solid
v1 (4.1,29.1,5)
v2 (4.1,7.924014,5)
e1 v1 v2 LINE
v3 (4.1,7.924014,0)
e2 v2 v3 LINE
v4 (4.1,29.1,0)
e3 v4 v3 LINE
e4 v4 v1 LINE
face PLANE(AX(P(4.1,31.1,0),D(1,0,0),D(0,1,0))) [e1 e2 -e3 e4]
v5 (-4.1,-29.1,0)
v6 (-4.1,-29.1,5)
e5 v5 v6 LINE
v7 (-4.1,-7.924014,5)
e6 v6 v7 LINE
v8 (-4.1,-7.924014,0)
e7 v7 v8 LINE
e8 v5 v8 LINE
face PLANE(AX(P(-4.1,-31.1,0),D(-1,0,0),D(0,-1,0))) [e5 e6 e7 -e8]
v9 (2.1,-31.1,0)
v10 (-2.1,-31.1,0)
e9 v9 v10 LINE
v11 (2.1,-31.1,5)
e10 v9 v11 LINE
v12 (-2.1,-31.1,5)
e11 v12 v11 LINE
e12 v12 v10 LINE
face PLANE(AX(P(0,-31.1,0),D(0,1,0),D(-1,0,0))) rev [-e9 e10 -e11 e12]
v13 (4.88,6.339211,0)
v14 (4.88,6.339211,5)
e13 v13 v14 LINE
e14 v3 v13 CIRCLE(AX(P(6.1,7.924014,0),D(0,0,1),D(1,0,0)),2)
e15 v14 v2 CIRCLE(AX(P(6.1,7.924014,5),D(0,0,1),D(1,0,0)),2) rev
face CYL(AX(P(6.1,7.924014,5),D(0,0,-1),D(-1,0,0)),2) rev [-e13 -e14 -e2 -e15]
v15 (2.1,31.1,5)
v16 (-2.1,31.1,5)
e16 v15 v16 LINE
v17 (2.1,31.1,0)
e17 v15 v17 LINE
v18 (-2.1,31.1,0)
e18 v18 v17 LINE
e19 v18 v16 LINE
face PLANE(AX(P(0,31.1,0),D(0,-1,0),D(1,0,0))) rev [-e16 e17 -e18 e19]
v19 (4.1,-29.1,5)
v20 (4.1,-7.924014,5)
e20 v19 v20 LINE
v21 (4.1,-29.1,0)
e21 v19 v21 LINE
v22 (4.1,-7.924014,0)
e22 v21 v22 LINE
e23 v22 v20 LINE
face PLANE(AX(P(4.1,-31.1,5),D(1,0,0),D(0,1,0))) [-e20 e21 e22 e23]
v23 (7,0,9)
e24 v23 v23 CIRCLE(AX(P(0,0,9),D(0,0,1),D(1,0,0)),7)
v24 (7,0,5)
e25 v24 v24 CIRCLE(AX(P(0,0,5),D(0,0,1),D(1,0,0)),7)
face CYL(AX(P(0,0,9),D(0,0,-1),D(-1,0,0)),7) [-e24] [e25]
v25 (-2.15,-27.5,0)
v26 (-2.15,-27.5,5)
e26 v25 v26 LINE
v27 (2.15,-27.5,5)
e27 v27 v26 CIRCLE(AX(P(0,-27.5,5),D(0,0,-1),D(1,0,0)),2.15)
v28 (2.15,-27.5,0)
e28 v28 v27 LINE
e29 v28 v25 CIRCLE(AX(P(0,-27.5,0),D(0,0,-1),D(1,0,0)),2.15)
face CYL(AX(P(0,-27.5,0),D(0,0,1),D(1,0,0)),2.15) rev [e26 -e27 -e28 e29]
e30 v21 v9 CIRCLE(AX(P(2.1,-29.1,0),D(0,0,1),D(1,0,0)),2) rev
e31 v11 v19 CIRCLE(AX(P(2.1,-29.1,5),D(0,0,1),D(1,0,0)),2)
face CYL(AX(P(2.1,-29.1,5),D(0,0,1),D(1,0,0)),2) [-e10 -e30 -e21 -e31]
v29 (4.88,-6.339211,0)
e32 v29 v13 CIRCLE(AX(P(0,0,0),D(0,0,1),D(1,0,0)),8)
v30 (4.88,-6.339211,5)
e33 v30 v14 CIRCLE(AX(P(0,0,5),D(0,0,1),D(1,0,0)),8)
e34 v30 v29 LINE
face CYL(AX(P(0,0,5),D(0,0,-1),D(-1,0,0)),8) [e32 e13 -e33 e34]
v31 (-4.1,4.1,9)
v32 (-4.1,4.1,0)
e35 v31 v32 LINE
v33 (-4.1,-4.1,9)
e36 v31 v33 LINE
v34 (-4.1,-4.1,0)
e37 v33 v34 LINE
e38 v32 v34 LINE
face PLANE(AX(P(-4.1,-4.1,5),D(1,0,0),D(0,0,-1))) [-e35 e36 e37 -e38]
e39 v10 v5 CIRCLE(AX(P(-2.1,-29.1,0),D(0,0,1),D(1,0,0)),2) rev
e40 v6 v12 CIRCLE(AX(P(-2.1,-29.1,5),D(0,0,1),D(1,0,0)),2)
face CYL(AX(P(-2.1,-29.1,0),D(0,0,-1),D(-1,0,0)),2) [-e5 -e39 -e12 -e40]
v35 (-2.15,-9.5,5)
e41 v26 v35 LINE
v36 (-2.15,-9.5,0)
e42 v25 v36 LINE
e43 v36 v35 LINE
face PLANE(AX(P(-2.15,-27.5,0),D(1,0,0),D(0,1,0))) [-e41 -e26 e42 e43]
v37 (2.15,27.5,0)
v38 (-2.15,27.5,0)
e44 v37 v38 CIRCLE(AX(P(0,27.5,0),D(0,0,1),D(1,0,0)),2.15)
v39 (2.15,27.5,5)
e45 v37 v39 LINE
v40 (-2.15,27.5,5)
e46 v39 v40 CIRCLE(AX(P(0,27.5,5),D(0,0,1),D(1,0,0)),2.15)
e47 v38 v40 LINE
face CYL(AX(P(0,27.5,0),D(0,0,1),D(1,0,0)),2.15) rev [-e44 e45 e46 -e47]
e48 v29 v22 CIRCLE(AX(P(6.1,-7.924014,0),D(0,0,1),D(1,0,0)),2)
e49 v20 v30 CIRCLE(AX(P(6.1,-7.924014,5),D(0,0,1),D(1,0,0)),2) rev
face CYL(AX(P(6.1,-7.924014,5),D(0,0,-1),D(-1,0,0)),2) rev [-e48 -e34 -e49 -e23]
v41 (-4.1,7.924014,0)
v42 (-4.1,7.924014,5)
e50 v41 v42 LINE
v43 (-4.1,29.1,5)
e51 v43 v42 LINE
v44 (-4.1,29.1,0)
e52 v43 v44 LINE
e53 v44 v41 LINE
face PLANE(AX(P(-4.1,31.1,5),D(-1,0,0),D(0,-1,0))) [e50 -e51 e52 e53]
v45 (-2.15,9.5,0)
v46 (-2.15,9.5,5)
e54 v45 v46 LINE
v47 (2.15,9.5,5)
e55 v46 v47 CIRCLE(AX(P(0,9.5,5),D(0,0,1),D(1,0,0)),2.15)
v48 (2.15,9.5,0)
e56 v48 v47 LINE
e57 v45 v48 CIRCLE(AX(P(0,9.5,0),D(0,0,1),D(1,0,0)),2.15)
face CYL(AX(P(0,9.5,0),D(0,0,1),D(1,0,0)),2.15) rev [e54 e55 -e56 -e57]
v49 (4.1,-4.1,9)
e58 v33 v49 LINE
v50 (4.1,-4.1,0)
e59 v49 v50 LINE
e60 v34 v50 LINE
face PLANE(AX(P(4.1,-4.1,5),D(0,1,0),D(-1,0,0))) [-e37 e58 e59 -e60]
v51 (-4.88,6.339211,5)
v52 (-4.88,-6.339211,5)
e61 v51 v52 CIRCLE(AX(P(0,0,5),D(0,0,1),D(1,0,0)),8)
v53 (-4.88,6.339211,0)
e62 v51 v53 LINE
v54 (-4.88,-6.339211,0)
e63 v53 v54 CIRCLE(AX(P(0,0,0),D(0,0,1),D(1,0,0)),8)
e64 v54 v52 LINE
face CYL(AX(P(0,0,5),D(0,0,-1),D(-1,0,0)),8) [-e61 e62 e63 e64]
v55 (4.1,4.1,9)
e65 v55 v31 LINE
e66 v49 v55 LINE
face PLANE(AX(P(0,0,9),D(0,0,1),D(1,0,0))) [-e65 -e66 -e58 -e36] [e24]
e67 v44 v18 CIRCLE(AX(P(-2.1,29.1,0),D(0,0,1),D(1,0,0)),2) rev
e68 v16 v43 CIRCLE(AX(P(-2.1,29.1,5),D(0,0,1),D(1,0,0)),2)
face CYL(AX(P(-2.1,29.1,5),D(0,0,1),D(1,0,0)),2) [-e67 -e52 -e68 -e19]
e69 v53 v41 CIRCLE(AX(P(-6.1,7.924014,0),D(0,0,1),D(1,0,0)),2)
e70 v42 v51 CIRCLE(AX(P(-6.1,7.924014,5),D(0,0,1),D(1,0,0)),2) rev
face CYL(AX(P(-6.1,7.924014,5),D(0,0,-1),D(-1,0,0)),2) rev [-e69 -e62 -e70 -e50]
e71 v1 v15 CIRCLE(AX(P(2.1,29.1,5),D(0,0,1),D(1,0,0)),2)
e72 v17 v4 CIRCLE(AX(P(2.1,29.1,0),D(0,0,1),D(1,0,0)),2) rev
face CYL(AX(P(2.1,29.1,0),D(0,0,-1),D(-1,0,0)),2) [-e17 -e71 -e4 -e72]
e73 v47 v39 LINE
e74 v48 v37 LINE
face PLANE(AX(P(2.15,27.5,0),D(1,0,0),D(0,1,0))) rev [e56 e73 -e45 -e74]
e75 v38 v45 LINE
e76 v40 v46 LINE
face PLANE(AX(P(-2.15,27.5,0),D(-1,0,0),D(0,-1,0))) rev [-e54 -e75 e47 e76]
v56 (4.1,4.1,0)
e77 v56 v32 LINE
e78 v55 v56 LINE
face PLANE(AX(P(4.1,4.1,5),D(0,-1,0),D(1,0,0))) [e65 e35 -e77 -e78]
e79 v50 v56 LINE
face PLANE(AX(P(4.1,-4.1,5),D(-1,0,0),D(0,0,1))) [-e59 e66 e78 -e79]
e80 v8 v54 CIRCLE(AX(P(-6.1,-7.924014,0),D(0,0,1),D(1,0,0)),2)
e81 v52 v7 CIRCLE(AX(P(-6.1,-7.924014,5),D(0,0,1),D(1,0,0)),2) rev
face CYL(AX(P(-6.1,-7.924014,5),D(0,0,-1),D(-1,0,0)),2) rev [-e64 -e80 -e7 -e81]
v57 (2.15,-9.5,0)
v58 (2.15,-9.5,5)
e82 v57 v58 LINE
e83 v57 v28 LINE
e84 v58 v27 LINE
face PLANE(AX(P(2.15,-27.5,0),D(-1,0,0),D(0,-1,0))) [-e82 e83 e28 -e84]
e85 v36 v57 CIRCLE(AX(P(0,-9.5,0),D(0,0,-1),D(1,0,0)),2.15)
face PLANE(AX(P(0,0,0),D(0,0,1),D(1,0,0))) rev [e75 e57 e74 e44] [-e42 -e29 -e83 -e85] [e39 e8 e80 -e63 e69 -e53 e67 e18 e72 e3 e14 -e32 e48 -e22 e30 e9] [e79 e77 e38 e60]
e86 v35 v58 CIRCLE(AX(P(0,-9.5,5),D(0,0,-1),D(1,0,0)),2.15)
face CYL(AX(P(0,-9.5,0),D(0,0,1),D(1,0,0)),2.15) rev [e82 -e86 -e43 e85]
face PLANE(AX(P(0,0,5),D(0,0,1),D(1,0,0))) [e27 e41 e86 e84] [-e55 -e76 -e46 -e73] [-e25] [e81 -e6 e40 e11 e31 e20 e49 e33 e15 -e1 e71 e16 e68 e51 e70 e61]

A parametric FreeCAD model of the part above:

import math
import FreeCAD as App
import Part
import Sketcher

V = App.Vector
Q = App.Units.Quantity


def edges_at(feature, points):
    """Names of the edges that pass closest to the given points."""
    edges = feature.Shape.Edges
    near = lambda p: min(range(len(edges)), key=lambda i: edges[i].distToShape(Part.Vertex(*p))[0])
    return sorted({f"Edge{near(p) + 1}" for p in points})


def add_polygon(sketch, points):
    """Adds a closed chain of lines whose ends are joined by coincident constraints."""
    first, n = sketch.GeometryCount, len(points)
    for a, b in zip(points, points[1:] + points[:1]):
        sketch.addGeometry(Part.LineSegment(App.Vector(*a, 0), App.Vector(*b, 0)), False)
    for i in range(n):
        sketch.addConstraint(Sketcher.Constraint("Coincident", first + i, 2, first + (i + 1) % n, 1))

doc = App.newDocument("Part")
body = doc.addObject("PartDesign::Body", "Body")

# Sketch on XY plane
sketch1 = body.newObject("Sketcher::SketchObject", "Sketch")
sketch1.AttachmentSupport = (doc.getObject("XY_Plane"), [""])
sketch1.MapMode = "FlatFace"
sketch1.addGeometry(Part.Circle(V(0, 0, 0), V(0, 0, 1), 8), False)  # 0
add_polygon(sketch1, [(4.1, -4.1), (-4.1, -4.1), (-4.1, 4.1), (4.1, 4.1)])  # lines 1-4
sketch1.addConstraint([
    Sketcher.Constraint("Horizontal", 1),
    Sketcher.Constraint("Vertical", 2),
    Sketcher.Constraint("Horizontal", 3),
    Sketcher.Constraint("Vertical", 4),
    Sketcher.Constraint("Coincident", 0, 3, -1, 1),
    Sketcher.Constraint("Symmetric", 1, 2, 3, 2, -1, 1),
    Sketcher.Constraint("Equal", 3, 2),
    Sketcher.Constraint("Diameter", 0, Q("16 mm")),
    Sketcher.Constraint("DistanceX", 1, 2, 1, 1, Q("8.2 mm")),
])
pad1 = body.newObject("PartDesign::Pad", "Pad")
pad1.Profile = sketch1
pad1.Length = 5

# Sketch on XZ plane
sketch2 = body.newObject("Sketcher::SketchObject", "Sketch001")
sketch2.AttachmentSupport = (doc.getObject("XZ_Plane"), [""])
sketch2.MapMode = "FlatFace"
sketch2.AttachmentOffset = App.Placement(V(0, 0, -4.1), App.Rotation())
add_polygon(sketch2, [(-4.1, 5), (-4.1, 0), (4.1, 0), (4.1, 5)])  # lines 0-3
sketch2.addConstraint([
    Sketcher.Constraint("Vertical", 0),
    Sketcher.Constraint("Horizontal", 1),
    Sketcher.Constraint("Vertical", 2),
    Sketcher.Constraint("Horizontal", 3),
    Sketcher.Constraint("Symmetric", 0, 2, 1, 2, -1, 1),
    Sketcher.Constraint("DistanceY", 0, 2, 0, 1, Q("5 mm")),
    Sketcher.Constraint("DistanceX", 1, 1, 1, 2, Q("8.2 mm")),
])
pad2 = body.newObject("PartDesign::Pad", "Pad001")
pad2.Profile = sketch2
pad2.Length = 27
pad2.Reversed = True

# Sketch on XZ plane
sketch3 = body.newObject("Sketcher::SketchObject", "Sketch002")
sketch3.AttachmentSupport = (doc.getObject("XZ_Plane"), [""])
sketch3.MapMode = "FlatFace"
sketch3.AttachmentOffset = App.Placement(V(0, 0, 4.1), App.Rotation())
add_polygon(sketch3, [(-4.1, 0), (-4.1, 5), (4.1, 5), (4.1, 0)])  # lines 0-3
sketch3.addConstraint([
    Sketcher.Constraint("Vertical", 0),
    Sketcher.Constraint("Horizontal", 1),
    Sketcher.Constraint("Vertical", 2),
    Sketcher.Constraint("Horizontal", 3),
    Sketcher.Constraint("Symmetric", 2, 2, 3, 2, -1, 1),
    Sketcher.Constraint("DistanceY", 0, 1, 0, 2, Q("5 mm")),
    Sketcher.Constraint("DistanceX", 1, 1, 1, 2, Q("8.2 mm")),
])
pad3 = body.newObject("PartDesign::Pad", "Pad002")
pad3.Profile = sketch3
pad3.Length = 27

# Sketch on XY plane
sketch4 = body.newObject("Sketcher::SketchObject", "Sketch003")
sketch4.AttachmentSupport = (doc.getObject("XY_Plane"), [""])
sketch4.MapMode = "FlatFace"
sketch4.AttachmentOffset = App.Placement(V(0, 0, 5), App.Rotation())
sketch4.addGeometry(Part.Circle(V(0, 0, 0), V(0, 0, 1), 7), False)  # 0
add_polygon(sketch4, [(4.1, -4.1), (-4.1, -4.1), (-4.1, 4.1), (4.1, 4.1)])  # lines 1-4
sketch4.addConstraint([
    Sketcher.Constraint("Horizontal", 1),
    Sketcher.Constraint("Vertical", 2),
    Sketcher.Constraint("Horizontal", 3),
    Sketcher.Constraint("Vertical", 4),
    Sketcher.Constraint("Coincident", 0, 3, -1, 1),
    Sketcher.Constraint("Symmetric", 1, 2, 3, 2, -1, 1),
    Sketcher.Constraint("Equal", 3, 2),
    Sketcher.Constraint("Diameter", 0, Q("14 mm")),
    Sketcher.Constraint("DistanceX", 1, 2, 1, 1, Q("8.2 mm")),
])
pad4 = body.newObject("PartDesign::Pad", "Pad003")
pad4.Profile = sketch4
pad4.Length = 4

# Sketch on XY plane
sketch5 = body.newObject("Sketcher::SketchObject", "Sketch004")
sketch5.AttachmentSupport = (doc.getObject("XY_Plane"), [""])
sketch5.MapMode = "FlatFace"
sketch5.AttachmentOffset = App.Placement(V(0, 0, 5), App.Rotation())
sketch5.addGeometry([
    Part.LineSegment(V(2.15, 9.5, 0), V(2.15, 27.5, 0)),
    Part.ArcOfCircle(Part.Circle(V(0, 27.5, 0), V(0, 0, 1), 2.15), math.radians(0), math.radians(180)),
    Part.LineSegment(V(-2.15, 27.5, 0), V(-2.15, 9.5, 0)),
    Part.ArcOfCircle(Part.Circle(V(0, 9.5, 0), V(0, 0, 1), 2.15), math.radians(180), math.radians(360)),
], False)
sketch5.addConstraint([
    Sketcher.Constraint("Tangent", 0, 2, 1, 1),
    Sketcher.Constraint("Tangent", 1, 2, 2, 1),
    Sketcher.Constraint("Tangent", 2, 2, 3, 1),
    Sketcher.Constraint("Tangent", 3, 2, 0, 1),
    Sketcher.Constraint("Vertical", 0),
    Sketcher.Constraint("Vertical", 2),
    Sketcher.Constraint("PointOnObject", 1, 3, -2),
    Sketcher.Constraint("DistanceY", 0, 1, 0, 2, Q("18 mm")),
    Sketcher.Constraint("Radius", 1, Q("2.15 mm")),
    Sketcher.Constraint("DistanceY", -1, 1, 1, 3, Q("27.5 mm")),
])
pocket1 = body.newObject("PartDesign::Pocket", "Pocket")
pocket1.Profile = sketch5
pocket1.Type = "ThroughAll"
doc.recompute()

mirrored = body.newObject("PartDesign::Mirrored", "Mirrored")
mirrored.Originals = [pocket1]
mirrored.MirrorPlane = (doc.getObject("XZ_Plane"), [""])
body.Tip = mirrored
doc.recompute()

fillet = body.newObject("PartDesign::Fillet", "Fillet")
fillet.Base = (mirrored, edges_at(mirrored, [
    (-4.1, 6.869, 2.5),
    (4.1, 6.869, 2.5),
    (4.1, -6.869, 2.5),
    (-4.1, -6.869, 2.5),
]))
fillet.Radius = 2
doc.recompute()

fillet2 = body.newObject("PartDesign::Fillet", "Fillet001")
fillet2.Base = (fillet, edges_at(fillet, [
    (-4.1, 31.1, 2.5),
    (4.1, 31.1, 2.5),
    (4.1, -31.1, 2.5),
    (-4.1, -31.1, 2.5),
]))
fillet2.Radius = 2

doc.recompute()
